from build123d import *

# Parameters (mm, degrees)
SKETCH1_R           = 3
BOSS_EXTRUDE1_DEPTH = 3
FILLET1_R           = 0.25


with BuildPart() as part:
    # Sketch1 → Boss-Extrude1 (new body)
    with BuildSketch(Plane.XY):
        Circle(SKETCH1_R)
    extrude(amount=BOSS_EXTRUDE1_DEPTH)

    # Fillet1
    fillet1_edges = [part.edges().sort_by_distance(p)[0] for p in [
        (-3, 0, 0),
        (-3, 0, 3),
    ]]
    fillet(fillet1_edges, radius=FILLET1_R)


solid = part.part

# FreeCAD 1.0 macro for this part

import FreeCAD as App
import Part
import Sketcher
from FreeCAD import Vector
Q = App.Units.Quantity


def edges_at(feature, points):
    """Names of the edges that pass closest to the given points."""
    edges = feature.Shape.Edges
    near = lambda p: min(range(len(edges)), key=lambda i: edges[i].distToShape(Part.Vertex(*p))[0])
    return sorted({f"Edge{near(p) + 1}" for p in points})

doc = App.newDocument("Part")
body = doc.addObject("PartDesign::Body", "Body")

sketch1 = body.newObject("Sketcher::SketchObject", "Sketch")
sketch1.AttachmentSupport = (doc.getObject("XY_Plane"), [""])
sketch1.MapMode = "FlatFace"
sketch1.addGeometry(Part.Circle(Vector(0, 0, 0), Vector(0, 0, 1), 3), False)
sketch1.addConstraint(Sketcher.Constraint("Coincident", 0, 3, -1, 1))
sketch1.addConstraint(Sketcher.Constraint("Diameter", 0, Q("6 mm")))
pad1 = body.newObject("PartDesign::Pad", "Pad")
pad1.Profile = sketch1
pad1.Length = 3
doc.recompute()

fillet = body.newObject("PartDesign::Fillet", "Fillet")
fillet.Base = (pad1, edges_at(pad1, [(-3, 0, 0), (-3, 0, 3)]))
fillet.Radius = 0.25

doc.recompute()
